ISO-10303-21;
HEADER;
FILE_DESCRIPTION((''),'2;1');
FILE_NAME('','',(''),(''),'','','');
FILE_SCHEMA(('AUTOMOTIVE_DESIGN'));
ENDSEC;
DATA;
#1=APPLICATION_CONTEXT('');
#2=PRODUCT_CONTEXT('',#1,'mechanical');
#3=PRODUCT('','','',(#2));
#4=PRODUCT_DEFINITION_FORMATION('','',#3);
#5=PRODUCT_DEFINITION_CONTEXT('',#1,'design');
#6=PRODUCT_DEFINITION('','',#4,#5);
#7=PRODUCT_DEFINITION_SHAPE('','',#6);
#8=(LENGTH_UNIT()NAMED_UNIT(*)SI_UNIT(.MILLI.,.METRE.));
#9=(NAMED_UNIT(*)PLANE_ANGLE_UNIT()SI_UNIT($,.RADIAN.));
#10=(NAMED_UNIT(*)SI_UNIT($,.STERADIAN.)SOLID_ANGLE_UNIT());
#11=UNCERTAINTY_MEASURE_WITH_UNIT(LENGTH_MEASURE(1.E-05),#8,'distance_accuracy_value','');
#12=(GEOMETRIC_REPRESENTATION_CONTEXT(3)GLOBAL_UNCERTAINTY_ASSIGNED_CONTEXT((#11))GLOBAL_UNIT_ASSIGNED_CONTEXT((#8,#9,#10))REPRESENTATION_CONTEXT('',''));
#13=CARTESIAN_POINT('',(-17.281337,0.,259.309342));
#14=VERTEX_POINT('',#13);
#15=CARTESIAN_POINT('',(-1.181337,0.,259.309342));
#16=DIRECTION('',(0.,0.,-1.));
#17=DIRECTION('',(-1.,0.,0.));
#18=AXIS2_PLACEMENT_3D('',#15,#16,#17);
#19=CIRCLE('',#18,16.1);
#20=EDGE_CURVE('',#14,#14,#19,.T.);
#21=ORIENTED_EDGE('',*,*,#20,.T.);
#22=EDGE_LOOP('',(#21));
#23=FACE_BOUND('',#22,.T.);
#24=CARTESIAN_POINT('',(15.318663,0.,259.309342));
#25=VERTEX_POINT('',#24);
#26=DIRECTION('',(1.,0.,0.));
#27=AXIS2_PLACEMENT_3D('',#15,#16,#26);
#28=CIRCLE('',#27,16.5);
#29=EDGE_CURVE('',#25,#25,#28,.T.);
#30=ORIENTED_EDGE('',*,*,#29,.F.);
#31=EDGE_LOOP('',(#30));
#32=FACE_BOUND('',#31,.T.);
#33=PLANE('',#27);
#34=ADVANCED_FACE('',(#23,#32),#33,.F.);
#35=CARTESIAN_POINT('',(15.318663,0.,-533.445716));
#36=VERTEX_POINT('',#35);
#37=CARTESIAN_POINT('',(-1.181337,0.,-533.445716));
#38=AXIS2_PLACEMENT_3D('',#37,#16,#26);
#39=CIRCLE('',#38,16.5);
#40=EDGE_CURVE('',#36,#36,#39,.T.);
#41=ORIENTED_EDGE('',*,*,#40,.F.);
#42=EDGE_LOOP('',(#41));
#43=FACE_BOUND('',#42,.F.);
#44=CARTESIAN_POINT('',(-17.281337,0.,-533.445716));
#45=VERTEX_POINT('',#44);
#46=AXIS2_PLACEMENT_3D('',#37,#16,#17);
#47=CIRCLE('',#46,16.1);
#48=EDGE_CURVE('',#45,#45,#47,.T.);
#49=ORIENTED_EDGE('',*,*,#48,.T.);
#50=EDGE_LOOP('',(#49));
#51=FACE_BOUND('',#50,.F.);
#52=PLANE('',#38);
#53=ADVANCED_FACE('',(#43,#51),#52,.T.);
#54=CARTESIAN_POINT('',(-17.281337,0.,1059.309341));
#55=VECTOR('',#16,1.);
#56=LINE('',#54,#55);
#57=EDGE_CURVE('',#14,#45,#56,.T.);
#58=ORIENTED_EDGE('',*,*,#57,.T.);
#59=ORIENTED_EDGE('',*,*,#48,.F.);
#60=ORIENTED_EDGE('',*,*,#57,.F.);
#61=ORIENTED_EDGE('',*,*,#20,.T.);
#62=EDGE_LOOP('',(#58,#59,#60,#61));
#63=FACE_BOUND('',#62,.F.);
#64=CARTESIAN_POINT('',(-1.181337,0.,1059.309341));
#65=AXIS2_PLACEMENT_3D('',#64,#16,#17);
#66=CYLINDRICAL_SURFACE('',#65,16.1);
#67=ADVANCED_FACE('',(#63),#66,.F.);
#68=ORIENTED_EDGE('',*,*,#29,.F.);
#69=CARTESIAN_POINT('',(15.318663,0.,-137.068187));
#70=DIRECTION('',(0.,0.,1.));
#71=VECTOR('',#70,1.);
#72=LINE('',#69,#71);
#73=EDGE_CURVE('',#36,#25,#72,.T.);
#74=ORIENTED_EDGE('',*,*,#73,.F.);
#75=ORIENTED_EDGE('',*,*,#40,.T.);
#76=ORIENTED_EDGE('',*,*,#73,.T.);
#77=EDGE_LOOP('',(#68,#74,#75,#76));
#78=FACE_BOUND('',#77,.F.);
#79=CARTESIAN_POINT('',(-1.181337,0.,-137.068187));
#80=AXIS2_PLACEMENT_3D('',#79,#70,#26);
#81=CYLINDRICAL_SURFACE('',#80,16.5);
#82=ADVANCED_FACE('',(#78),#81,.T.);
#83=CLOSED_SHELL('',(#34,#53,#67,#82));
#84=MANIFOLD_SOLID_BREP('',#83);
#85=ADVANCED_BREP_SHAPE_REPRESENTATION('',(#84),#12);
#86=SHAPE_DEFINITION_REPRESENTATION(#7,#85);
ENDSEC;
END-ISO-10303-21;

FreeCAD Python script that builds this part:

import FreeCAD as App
import Part
import Sketcher

V = App.Vector


def add_polygon(sketch, points):
    """Adds a closed chain of lines whose ends are joined by coincident constraints."""
    first, n = sketch.GeometryCount, len(points)
    for a, b in zip(points, points[1:] + points[:1]):
        sketch.addGeometry(Part.LineSegment(App.Vector(*a, 0), App.Vector(*b, 0)), False)
    for i in range(n):
        sketch.addConstraint(Sketcher.Constraint("Coincident", first + i, 2, first + (i + 1) % n, 1))

doc = App.newDocument("Part")
body = doc.addObject("PartDesign::Body", "Body")

# Sketch on XZ plane
sketch1 = body.newObject("Sketcher::SketchObject", "Sketch")
sketch1.AttachmentSupport = (doc.getObject("XZ_Plane"), [""])
sketch1.MapMode = "FlatFace"
add_polygon(sketch1, [(-1.181337, 259.309342), (-1.181337, -533.445716), (15.318663, -533.445716), (15.318663, 259.309342)])  # lines 0-3
sketch1.addGeometry(Part.LineSegment(V(-1.181337, 259.309342, 0), V(-1.181337, -533.445716, 0)), True)  # axis
sketch1.addConstraint([
    Sketcher.Constraint("Vertical", 0),
    Sketcher.Constraint("Horizontal", 1),
    Sketcher.Constraint("Vertical", 2),
    Sketcher.Constraint("Horizontal", 3),
    Sketcher.Constraint("Vertical", 4),
    Sketcher.Constraint("Coincident", 4, 1, 3, 2),
    Sketcher.Constraint("Horizontal", 1, 2, 4, 2),
    Sketcher.Constraint("DistanceX", 1, 1, 1, 2, 16.5),
    Sketcher.Constraint("DistanceY", 0, 2, 0, 1, 792.755057),
    Sketcher.Constraint("DistanceY", -1, 1, 2, 2, 259.309342),
    Sketcher.Constraint("DistanceX", 0, 2, -1, 1, 1.181337),
])
revolution = body.newObject("PartDesign::Revolution", "Revolution")
revolution.Profile = sketch1
revolution.ReferenceAxis = (sketch1, ["Axis0"])
revolution.Angle = 360

# Sketch on XY plane
sketch2 = body.newObject("Sketcher::SketchObject", "Sketch001")
sketch2.AttachmentSupport = (doc.getObject("XY_Plane"), [""])
sketch2.MapMode = "FlatFace"
sketch2.AttachmentOffset = App.Placement(V(0, 0, 259.309341), App.Rotation())
sketch2.addGeometry(Part.Circle(V(-1.181337, 0, 0), V(0, 0, 1), 16.1), False)
sketch2.addConstraint([
    Sketcher.Constraint("PointOnObject", 0, 3, -1),
    Sketcher.Constraint("Diameter", 0, 32.2),
    Sketcher.Constraint("DistanceX", 0, 3, -1, 1, 1.181337),
])
doc.recompute()
hole = body.newObject("PartDesign::Hole", "Hole")
hole.Profile = sketch2
hole.ThreadType = "None"
hole.Diameter = 32.2
hole.DepthType = "Dimension"
hole.Depth = 800
hole.DrillPoint = "Flat"

doc.recompute()
